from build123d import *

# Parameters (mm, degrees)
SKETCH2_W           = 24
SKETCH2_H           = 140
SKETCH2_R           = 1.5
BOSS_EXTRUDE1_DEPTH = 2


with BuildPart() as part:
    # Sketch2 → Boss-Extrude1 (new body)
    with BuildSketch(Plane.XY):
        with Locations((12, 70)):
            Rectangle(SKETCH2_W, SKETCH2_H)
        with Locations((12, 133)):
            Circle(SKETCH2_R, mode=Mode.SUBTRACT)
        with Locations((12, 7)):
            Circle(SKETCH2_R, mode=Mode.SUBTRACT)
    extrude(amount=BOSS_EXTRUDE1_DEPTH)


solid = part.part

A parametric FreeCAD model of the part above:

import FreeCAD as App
import Part
import Sketcher

V = App.Vector

doc = App.newDocument("Part")
body = doc.addObject("PartDesign::Body", "Body")

# Sketch on XY plane
sketch1 = doc.addObject("Sketcher::SketchObject", "Sketch")
body.addObject(sketch1)
sketch1.AttachmentSupport = (doc.XY_Plane, [""])
sketch1.MapMode = "FlatFace"
sketch1.addGeometry([
    Part.LineSegment(V(0, 140, 0), V(0, 0, 0)),  # 0
    Part.LineSegment(V(0, 0, 0), V(24, 0, 0)),  # 1
    Part.LineSegment(V(24, 0, 0), V(24, 140, 0)),  # 2
    Part.LineSegment(V(24, 140, 0), V(0, 140, 0)),  # 3
    Part.Circle(V(12, 7, 0), V(0, 0, 1), 1.5),  # 4
    Part.Circle(V(12, 133, 0), V(0, 0, 1), 1.5),  # 5
], False)
sketch1.addConstraint([
    Sketcher.Constraint("Coincident", 0, 2, 1, 1),
    Sketcher.Constraint("Coincident", 1, 2, 2, 1),
    Sketcher.Constraint("Coincident", 2, 2, 3, 1),
    Sketcher.Constraint("Coincident", 3, 2, 0, 1),
    Sketcher.Constraint("Vertical", 0),
    Sketcher.Constraint("Horizontal", 1),
    Sketcher.Constraint("Vertical", 2),
    Sketcher.Constraint("Horizontal", 3),
    Sketcher.Constraint("Coincident", 0, 2, -1, 1),
    Sketcher.Constraint("Equal", 4, 5),
    Sketcher.Constraint("Vertical", 4, 3, 5, 3),
    Sketcher.Constraint("Diameter", 4, 3.0),
    Sketcher.Constraint("DistanceX", 1, 1, 1, 2, 24.0),
    Sketcher.Constraint("DistanceY", 0, 2, 0, 1, 140.0),
    Sketcher.Constraint("DistanceX", -1, 1, 4, 3, 12.0),
    Sketcher.Constraint("DistanceY", -1, 1, 4, 3, 7.0),
    Sketcher.Constraint("DistanceY", -1, 1, 5, 3, 133.0),
])
pad1 = doc.addObject("PartDesign::Pad", "Pad")
body.addObject(pad1)
pad1.Profile = sketch1
pad1.Length = 2

doc.recompute()
